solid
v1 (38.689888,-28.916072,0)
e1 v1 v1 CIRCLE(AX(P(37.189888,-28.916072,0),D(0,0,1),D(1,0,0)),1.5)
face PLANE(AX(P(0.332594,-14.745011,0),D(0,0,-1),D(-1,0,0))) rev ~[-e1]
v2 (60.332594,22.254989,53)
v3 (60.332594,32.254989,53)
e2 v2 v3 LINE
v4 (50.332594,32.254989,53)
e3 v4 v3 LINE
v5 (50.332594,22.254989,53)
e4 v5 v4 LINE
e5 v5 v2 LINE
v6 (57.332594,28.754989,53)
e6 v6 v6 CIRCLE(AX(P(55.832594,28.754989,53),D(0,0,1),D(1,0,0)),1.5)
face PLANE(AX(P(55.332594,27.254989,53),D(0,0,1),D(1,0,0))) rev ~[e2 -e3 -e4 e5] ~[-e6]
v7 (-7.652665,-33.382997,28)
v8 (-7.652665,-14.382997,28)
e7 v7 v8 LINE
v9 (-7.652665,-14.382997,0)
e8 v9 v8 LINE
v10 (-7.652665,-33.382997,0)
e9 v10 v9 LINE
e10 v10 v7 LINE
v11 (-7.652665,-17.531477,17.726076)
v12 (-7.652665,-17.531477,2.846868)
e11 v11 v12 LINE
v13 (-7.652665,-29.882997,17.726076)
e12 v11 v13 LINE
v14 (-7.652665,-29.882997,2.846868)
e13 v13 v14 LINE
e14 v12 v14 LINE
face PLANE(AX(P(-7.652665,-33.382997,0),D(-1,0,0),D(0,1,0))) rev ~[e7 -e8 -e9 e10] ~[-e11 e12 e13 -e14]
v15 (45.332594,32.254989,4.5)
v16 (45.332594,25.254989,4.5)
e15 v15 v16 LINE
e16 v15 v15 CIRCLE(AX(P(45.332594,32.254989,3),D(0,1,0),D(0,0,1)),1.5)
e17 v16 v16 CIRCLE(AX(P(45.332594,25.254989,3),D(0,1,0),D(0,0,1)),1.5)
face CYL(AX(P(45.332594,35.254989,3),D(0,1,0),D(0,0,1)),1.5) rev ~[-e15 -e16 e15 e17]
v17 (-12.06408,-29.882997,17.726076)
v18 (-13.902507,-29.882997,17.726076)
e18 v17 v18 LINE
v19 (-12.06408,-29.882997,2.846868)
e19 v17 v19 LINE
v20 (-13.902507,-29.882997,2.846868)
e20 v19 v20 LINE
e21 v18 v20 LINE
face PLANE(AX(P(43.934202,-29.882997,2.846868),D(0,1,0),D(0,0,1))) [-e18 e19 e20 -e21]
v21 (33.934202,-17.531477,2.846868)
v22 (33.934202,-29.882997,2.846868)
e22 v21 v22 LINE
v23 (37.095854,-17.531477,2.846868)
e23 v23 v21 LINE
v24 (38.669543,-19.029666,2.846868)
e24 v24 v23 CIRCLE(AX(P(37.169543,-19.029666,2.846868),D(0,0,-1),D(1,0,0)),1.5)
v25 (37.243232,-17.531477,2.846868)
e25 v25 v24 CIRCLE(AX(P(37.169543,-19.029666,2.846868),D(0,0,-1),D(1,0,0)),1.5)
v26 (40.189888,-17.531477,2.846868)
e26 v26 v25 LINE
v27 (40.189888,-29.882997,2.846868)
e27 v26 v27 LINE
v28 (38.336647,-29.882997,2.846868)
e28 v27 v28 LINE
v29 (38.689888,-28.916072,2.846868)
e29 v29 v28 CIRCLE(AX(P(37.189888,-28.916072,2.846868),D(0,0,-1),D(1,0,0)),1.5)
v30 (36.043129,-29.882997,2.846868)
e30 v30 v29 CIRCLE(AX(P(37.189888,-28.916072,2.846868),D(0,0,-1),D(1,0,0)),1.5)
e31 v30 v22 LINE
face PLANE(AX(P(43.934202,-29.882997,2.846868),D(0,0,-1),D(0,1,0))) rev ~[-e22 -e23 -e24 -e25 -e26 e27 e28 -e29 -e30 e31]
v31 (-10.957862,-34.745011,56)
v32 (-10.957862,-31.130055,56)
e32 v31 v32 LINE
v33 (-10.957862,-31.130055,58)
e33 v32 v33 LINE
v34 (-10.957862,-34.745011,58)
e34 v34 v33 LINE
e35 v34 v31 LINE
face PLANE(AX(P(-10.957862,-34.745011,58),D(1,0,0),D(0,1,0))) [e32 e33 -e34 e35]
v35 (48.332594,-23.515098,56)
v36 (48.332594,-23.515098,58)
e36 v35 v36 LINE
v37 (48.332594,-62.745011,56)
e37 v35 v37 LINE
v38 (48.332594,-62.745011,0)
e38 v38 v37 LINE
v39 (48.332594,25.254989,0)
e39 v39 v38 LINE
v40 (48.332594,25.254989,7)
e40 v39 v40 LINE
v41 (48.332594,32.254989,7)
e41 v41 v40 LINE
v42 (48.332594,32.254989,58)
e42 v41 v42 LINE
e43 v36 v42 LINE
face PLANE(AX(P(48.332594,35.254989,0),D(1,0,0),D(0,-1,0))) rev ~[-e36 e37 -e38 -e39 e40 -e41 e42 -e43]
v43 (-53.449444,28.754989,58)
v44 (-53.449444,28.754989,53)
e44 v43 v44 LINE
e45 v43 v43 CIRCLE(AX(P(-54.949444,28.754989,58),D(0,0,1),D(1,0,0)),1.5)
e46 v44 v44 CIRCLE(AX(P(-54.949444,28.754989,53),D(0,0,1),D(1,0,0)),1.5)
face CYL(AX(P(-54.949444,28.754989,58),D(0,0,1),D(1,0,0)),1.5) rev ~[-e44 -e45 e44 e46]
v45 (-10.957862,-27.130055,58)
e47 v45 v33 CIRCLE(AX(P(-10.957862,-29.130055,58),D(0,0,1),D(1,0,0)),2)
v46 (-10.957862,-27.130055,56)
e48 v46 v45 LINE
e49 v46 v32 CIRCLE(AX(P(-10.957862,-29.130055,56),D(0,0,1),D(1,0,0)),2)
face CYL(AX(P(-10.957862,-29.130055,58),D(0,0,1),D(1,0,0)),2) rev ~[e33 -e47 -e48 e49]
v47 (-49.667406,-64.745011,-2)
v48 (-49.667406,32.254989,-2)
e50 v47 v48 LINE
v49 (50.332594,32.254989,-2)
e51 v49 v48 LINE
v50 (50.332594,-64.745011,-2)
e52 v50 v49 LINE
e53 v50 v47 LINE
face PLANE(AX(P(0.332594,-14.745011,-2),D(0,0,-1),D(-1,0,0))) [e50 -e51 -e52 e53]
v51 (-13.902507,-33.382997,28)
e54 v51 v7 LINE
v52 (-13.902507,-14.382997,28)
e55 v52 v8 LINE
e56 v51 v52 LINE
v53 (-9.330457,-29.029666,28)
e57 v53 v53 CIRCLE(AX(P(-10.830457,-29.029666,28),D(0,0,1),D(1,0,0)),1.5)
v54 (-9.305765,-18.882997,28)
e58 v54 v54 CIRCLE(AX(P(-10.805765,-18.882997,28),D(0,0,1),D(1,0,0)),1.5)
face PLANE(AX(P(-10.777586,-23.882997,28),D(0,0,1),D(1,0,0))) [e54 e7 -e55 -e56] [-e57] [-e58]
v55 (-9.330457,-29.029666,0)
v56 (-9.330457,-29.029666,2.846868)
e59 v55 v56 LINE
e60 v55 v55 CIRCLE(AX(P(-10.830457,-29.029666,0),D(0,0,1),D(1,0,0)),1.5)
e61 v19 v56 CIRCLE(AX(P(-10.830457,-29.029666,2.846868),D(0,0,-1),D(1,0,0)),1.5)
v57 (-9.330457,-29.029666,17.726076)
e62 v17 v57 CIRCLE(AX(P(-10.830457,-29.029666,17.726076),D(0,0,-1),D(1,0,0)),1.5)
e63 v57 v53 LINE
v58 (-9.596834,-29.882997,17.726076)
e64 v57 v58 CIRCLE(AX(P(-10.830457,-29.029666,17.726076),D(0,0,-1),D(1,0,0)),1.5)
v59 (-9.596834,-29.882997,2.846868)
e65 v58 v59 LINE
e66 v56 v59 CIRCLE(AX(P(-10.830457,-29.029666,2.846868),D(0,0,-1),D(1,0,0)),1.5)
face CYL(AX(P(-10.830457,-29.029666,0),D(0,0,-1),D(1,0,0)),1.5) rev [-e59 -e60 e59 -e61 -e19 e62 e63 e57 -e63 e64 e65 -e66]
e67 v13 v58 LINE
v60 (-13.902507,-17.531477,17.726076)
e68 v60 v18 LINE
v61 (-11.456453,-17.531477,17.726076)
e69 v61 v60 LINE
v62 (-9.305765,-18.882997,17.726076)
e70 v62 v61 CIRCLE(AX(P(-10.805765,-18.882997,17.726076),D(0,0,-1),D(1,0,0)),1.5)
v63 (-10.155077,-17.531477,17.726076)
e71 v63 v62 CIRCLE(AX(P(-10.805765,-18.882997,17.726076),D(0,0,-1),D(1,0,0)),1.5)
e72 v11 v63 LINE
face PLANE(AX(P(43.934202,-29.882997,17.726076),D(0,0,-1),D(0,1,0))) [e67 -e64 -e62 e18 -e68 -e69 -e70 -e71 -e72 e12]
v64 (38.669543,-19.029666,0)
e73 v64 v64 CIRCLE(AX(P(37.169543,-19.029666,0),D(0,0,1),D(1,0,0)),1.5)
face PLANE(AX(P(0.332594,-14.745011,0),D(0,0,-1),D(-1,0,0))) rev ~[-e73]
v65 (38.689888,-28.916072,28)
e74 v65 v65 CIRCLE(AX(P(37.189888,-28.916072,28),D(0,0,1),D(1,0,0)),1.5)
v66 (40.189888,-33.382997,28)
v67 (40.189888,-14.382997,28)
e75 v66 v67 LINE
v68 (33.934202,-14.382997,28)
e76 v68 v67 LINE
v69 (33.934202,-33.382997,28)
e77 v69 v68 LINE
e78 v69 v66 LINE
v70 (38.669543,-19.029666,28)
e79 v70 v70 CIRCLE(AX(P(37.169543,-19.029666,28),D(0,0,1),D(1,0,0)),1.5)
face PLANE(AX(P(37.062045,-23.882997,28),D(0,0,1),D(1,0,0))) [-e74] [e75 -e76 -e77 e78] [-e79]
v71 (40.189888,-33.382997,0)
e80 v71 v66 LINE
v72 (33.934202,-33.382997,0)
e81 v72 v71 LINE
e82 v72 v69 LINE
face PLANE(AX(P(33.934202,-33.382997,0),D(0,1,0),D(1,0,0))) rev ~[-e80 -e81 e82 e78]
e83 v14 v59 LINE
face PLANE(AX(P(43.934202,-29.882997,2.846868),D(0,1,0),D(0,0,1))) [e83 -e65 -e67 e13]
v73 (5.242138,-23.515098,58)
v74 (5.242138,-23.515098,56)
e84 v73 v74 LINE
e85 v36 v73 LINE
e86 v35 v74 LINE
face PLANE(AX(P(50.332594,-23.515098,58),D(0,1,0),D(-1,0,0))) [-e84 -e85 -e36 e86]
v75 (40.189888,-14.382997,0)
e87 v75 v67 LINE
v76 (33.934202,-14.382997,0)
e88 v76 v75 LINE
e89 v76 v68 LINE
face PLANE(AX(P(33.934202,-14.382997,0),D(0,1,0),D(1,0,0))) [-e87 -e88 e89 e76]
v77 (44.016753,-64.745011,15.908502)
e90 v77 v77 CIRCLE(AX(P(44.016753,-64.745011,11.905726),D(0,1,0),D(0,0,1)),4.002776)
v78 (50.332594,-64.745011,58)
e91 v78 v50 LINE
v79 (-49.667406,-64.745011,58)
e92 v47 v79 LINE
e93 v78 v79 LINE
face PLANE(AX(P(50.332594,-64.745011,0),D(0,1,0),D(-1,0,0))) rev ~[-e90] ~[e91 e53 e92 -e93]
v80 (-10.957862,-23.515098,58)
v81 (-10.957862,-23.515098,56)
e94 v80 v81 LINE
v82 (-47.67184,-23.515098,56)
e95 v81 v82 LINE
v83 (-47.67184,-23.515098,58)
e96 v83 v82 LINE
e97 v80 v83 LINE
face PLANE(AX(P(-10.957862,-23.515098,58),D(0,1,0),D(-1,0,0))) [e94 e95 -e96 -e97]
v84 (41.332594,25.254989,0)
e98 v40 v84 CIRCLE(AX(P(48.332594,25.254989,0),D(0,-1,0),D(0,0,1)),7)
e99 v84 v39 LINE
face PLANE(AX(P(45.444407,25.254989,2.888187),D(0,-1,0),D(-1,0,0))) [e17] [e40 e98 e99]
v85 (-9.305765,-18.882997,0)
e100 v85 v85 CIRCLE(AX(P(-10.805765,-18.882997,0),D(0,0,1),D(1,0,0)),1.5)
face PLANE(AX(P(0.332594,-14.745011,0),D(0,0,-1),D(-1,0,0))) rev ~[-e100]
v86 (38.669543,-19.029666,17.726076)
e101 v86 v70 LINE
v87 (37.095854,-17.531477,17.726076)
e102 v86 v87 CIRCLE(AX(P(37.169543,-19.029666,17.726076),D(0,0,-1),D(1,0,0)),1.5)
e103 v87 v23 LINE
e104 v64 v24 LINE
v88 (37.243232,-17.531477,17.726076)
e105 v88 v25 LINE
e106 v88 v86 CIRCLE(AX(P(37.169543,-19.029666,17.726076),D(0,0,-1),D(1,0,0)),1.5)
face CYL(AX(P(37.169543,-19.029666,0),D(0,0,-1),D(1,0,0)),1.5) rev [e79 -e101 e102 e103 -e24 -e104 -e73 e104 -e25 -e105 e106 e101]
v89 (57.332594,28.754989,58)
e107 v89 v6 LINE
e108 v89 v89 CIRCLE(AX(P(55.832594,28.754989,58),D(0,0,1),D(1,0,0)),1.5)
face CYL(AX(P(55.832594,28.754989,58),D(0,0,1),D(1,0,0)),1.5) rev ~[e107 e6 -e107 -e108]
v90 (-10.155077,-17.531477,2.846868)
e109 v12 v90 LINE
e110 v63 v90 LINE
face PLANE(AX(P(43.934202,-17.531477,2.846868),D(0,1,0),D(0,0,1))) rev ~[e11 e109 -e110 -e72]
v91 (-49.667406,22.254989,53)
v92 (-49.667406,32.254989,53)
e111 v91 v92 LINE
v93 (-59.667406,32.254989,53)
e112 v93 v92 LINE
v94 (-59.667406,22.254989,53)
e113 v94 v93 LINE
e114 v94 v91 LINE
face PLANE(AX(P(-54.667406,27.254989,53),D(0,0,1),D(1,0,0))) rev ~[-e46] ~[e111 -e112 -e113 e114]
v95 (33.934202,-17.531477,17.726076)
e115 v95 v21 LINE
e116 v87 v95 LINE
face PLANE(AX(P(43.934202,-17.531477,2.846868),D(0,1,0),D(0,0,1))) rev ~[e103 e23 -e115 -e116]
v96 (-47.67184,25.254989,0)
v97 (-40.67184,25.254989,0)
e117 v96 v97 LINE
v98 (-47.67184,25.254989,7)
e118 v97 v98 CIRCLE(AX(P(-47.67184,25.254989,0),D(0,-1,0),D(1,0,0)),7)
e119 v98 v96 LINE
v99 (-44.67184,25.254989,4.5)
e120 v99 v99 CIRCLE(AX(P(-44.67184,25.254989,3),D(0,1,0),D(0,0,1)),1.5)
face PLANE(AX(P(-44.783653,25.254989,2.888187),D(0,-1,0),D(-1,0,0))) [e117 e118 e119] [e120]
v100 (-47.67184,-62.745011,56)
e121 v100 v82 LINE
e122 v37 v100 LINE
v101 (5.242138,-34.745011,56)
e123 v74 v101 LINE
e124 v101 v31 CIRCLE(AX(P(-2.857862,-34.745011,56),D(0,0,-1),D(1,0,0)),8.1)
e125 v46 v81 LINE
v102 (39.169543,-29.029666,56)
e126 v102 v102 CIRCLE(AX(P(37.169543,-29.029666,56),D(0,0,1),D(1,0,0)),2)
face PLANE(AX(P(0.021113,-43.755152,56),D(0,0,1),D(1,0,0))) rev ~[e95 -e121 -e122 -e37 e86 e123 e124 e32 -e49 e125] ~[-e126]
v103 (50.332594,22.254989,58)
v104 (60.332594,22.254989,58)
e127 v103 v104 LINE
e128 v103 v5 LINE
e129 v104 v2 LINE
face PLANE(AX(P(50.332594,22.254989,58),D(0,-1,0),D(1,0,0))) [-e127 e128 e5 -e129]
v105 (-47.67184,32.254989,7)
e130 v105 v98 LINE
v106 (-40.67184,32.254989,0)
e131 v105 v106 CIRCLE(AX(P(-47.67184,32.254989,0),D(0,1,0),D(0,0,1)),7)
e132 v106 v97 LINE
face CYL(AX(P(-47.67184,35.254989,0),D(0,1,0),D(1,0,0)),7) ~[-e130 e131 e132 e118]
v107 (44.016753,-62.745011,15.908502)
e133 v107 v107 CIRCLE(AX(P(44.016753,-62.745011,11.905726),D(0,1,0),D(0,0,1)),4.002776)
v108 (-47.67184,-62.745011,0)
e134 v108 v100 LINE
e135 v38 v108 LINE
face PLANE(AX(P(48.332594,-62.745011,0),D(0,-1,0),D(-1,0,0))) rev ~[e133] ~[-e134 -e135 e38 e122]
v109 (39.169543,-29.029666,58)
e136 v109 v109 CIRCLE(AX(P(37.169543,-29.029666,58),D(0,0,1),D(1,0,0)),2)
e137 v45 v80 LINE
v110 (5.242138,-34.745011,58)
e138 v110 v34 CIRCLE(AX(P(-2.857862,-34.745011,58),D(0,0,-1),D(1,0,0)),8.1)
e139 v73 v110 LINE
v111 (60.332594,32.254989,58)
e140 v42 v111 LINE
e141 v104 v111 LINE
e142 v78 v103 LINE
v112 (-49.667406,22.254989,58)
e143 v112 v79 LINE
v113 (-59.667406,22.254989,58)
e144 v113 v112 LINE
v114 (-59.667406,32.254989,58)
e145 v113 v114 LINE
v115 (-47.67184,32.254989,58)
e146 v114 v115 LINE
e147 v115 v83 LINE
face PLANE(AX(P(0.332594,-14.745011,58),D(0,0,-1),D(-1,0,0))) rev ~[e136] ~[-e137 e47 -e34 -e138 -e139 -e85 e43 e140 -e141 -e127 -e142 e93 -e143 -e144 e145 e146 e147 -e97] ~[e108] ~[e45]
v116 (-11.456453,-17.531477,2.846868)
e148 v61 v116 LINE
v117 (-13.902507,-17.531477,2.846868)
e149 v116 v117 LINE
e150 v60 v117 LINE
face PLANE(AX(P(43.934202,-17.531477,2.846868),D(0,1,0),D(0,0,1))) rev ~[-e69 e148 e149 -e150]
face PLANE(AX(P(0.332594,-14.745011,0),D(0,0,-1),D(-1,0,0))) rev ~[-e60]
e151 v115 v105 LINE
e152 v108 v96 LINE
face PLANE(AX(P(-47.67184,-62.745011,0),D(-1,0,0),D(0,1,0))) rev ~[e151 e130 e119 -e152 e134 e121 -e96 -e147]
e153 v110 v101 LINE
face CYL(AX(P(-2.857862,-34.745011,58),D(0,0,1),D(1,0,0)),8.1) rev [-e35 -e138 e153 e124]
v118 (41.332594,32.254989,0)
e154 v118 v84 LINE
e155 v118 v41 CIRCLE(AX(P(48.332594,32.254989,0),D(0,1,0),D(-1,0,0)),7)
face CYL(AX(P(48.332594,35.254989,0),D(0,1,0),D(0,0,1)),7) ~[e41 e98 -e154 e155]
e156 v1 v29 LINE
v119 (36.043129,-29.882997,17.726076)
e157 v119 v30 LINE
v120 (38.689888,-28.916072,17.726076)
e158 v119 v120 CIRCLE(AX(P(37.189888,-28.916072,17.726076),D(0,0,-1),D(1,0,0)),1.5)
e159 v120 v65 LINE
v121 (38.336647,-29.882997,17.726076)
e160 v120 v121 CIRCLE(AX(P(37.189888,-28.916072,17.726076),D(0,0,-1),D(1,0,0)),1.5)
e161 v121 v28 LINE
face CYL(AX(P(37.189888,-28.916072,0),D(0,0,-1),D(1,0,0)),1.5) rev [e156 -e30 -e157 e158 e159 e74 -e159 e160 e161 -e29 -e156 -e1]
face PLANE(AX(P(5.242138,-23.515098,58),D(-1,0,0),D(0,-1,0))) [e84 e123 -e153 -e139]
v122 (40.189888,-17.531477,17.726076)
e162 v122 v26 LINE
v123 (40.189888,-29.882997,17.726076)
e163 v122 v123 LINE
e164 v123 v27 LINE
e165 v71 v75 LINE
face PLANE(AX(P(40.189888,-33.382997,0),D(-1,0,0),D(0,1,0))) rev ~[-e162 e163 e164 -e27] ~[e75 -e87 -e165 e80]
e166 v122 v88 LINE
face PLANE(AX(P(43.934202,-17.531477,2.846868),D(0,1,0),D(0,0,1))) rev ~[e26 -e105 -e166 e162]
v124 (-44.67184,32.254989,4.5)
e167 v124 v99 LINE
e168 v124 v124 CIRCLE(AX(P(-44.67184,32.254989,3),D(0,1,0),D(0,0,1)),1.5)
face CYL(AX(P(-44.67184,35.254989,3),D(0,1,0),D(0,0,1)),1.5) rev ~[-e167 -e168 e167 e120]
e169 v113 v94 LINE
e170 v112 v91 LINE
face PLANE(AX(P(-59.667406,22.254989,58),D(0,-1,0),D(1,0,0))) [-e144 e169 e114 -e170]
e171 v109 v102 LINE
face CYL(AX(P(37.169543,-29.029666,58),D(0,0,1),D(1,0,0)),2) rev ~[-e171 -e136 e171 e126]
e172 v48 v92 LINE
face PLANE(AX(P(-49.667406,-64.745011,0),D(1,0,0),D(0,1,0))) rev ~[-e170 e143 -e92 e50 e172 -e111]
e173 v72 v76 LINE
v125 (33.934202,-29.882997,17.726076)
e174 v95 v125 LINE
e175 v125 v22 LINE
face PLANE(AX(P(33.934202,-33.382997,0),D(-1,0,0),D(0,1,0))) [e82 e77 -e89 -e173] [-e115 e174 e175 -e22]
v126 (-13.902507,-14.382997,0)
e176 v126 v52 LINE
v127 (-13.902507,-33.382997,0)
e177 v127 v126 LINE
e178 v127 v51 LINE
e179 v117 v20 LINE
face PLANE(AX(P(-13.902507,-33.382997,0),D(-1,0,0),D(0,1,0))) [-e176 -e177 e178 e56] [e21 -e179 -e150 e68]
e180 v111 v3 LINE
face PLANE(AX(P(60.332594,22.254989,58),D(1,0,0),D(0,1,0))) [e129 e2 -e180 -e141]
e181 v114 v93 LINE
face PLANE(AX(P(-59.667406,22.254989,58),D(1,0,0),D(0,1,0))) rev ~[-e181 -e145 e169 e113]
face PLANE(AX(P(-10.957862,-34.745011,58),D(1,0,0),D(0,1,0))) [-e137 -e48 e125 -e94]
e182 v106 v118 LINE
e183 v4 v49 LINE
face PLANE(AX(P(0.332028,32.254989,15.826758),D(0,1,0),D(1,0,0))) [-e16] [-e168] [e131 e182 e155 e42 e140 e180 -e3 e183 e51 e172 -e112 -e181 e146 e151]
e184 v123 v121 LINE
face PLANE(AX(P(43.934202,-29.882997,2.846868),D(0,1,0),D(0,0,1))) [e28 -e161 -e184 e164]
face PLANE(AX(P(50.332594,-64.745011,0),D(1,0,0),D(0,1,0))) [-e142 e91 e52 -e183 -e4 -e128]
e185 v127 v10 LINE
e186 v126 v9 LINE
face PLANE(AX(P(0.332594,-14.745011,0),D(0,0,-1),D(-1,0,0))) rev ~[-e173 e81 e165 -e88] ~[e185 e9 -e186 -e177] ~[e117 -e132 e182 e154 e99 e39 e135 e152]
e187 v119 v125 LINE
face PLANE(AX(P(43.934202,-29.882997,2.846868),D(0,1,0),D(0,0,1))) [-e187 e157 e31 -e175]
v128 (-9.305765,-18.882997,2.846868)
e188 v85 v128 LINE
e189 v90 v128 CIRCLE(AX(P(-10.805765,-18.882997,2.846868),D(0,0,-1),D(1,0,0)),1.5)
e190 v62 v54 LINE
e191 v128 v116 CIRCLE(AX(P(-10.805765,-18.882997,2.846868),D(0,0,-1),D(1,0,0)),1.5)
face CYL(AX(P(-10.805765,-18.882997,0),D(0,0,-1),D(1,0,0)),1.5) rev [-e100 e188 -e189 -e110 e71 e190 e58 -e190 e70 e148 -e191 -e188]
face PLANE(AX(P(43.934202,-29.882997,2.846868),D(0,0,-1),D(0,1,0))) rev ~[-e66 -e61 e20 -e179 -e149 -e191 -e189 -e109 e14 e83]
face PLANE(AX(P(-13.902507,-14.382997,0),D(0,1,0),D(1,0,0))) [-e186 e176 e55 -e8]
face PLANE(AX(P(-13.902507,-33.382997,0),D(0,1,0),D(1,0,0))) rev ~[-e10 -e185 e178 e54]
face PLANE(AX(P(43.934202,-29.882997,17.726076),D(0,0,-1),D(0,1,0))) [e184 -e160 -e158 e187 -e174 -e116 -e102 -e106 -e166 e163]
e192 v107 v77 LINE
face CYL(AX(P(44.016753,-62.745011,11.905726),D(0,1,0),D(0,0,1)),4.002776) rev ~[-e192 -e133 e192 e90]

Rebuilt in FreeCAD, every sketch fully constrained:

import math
import FreeCAD as App
import Part
import Sketcher
Q = App.Units.Quantity

doc = App.newDocument("Part")
body = doc.addObject("PartDesign::Body", "Body")

# Sketch on XY plane
sketch1 = body.newObject("Sketcher::SketchObject", "Sketch")
sketch1.AttachmentSupport = (doc.getObject("XY_Plane"), [""])
sketch1.MapMode = "FlatFace"
sketch1.addGeometry(Part.LineSegment(App.Vector(-47.7, 35.3, 0), App.Vector(-49.7, 35.3, 0)), False)
sketch1.addGeometry(Part.LineSegment(App.Vector(-49.7, 35.3, 0), App.Vector(-49.7, -64.7, 0)), False)
sketch1.addGeometry(Part.LineSegment(App.Vector(-49.7, -64.7, 0), App.Vector(50.3, -64.7, 0)), False)
sketch1.addGeometry(Part.LineSegment(App.Vector(50.3, -64.7, 0), App.Vector(50.3, 35.3, 0)), False)
sketch1.addGeometry(Part.LineSegment(App.Vector(50.3, 35.3, 0), App.Vector(48.3, 35.3, 0)), False)
sketch1.addGeometry(Part.LineSegment(App.Vector(48.3, 35.3, 0), App.Vector(48.3, -62.7, 0)), False)
sketch1.addGeometry(Part.LineSegment(App.Vector(48.3, -62.7, 0), App.Vector(-47.7, -62.7, 0)), False)
sketch1.addGeometry(Part.LineSegment(App.Vector(-47.7, -62.7, 0), App.Vector(-47.7, 35.3, 0)), False)
sketch1.addConstraint(Sketcher.Constraint("Coincident", 0, 2, 1, 1))
sketch1.addConstraint(Sketcher.Constraint("Coincident", 1, 2, 2, 1))
sketch1.addConstraint(Sketcher.Constraint("Coincident", 2, 2, 3, 1))
sketch1.addConstraint(Sketcher.Constraint("Coincident", 3, 2, 4, 1))
sketch1.addConstraint(Sketcher.Constraint("Coincident", 4, 2, 5, 1))
sketch1.addConstraint(Sketcher.Constraint("Coincident", 5, 2, 6, 1))
sketch1.addConstraint(Sketcher.Constraint("Coincident", 6, 2, 7, 1))
sketch1.addConstraint(Sketcher.Constraint("Coincident", 7, 2, 0, 1))
sketch1.addConstraint(Sketcher.Constraint("Horizontal", 0))
sketch1.addConstraint(Sketcher.Constraint("Vertical", 1))
sketch1.addConstraint(Sketcher.Constraint("Horizontal", 2))
sketch1.addConstraint(Sketcher.Constraint("Vertical", 3))
sketch1.addConstraint(Sketcher.Constraint("Horizontal", 4))
sketch1.addConstraint(Sketcher.Constraint("Vertical", 5))
sketch1.addConstraint(Sketcher.Constraint("Horizontal", 6))
sketch1.addConstraint(Sketcher.Constraint("Vertical", 7))
sketch1.addConstraint(Sketcher.Constraint("Horizontal", 0, 2, 3, 2))
sketch1.addConstraint(Sketcher.Constraint("Equal", 2, 1))
sketch1.addConstraint(Sketcher.Constraint("DistanceX", 2, 1, 2, 2, Q("100 mm")))
sketch1.addConstraint(Sketcher.Constraint("DistanceX", 4, 2, 4, 1, Q("2 mm")))
sketch1.addConstraint(Sketcher.Constraint("DistanceY", 5, 2, 5, 1, Q("98 mm")))
sketch1.addConstraint(Sketcher.Constraint("DistanceX", 0, 2, 0, 1, Q("1.995565 mm")))
sketch1.addConstraint(Sketcher.Constraint("DistanceY", -1, 1, 0, 2, Q("35.254989 mm")))
sketch1.addConstraint(Sketcher.Constraint("DistanceX", 6, 2, -1, 1, Q("47.67184 mm")))
pad1 = body.newObject("PartDesign::Pad", "Pad")
pad1.Profile = sketch1
pad1.Length = 70

# Sketch on XY plane
sketch2 = body.newObject("Sketcher::SketchObject", "Sketch001")
sketch2.AttachmentSupport = (doc.getObject("XY_Plane"), [""])
sketch2.MapMode = "FlatFace"
sketch2.addGeometry(Part.LineSegment(App.Vector(50, 35, 0), App.Vector(50, -65, 0)), False)
sketch2.addGeometry(Part.LineSegment(App.Vector(50, -65, 0), App.Vector(-50, -65, 0)), False)
sketch2.addGeometry(Part.LineSegment(App.Vector(-50, -65, 0), App.Vector(-50, 35, 0)), False)
sketch2.addGeometry(Part.LineSegment(App.Vector(-50, 35, 0), App.Vector(50, 35, 0)), False)
sketch2.addConstraint(Sketcher.Constraint("Coincident", 0, 2, 1, 1))
sketch2.addConstraint(Sketcher.Constraint("Coincident", 1, 2, 2, 1))
sketch2.addConstraint(Sketcher.Constraint("Coincident", 2, 2, 3, 1))
sketch2.addConstraint(Sketcher.Constraint("Coincident", 3, 2, 0, 1))
sketch2.addConstraint(Sketcher.Constraint("Vertical", 0))
sketch2.addConstraint(Sketcher.Constraint("Horizontal", 1))
sketch2.addConstraint(Sketcher.Constraint("Vertical", 2))
sketch2.addConstraint(Sketcher.Constraint("Horizontal", 3))
sketch2.addConstraint(Sketcher.Constraint("Equal", 3, 0))
sketch2.addConstraint(Sketcher.Constraint("DistanceX", 1, 2, 1, 1, Q("100 mm")))
sketch2.addConstraint(Sketcher.Constraint("DistanceY", 0, 2, -1, 1, Q("64.745011 mm")))
sketch2.addConstraint(Sketcher.Constraint("DistanceX", -1, 1, 0, 2, Q("50.332594 mm")))
pad2 = body.newObject("PartDesign::Pad", "Pad001")
pad2.Profile = sketch2
pad2.Length = 2
pad2.Reversed = True

# Sketch on XY plane
sketch3 = body.newObject("Sketcher::SketchObject", "Sketch002")
sketch3.AttachmentSupport = (doc.getObject("XY_Plane"), [""])
sketch3.MapMode = "FlatFace"
sketch3.addGeometry(Part.LineSegment(App.Vector(33.9, -14.4, 0), App.Vector(33.9, -33.4, 0)), False)
sketch3.addGeometry(Part.LineSegment(App.Vector(33.9, -33.4, 0), App.Vector(40.2, -33.4, 0)), False)
sketch3.addGeometry(Part.LineSegment(App.Vector(40.2, -33.4, 0), App.Vector(40.2, -14.4, 0)), False)
sketch3.addGeometry(Part.LineSegment(App.Vector(40.2, -14.4, 0), App.Vector(33.9, -14.4, 0)), False)
sketch3.addGeometry(Part.Circle(App.Vector(37.2, -28.9, 0), App.Vector(0, 0, 1), 1.5), False)
sketch3.addGeometry(Part.Circle(App.Vector(37.2, -19, 0), App.Vector(0, 0, 1), 1.5), False)
sketch3.addGeometry(Part.LineSegment(App.Vector(-13.9, -14.4, 0), App.Vector(-13.9, -33.4, 0)), False)
sketch3.addGeometry(Part.LineSegment(App.Vector(-13.9, -33.4, 0), App.Vector(-7.7, -33.4, 0)), False)
sketch3.addGeometry(Part.LineSegment(App.Vector(-7.7, -33.4, 0), App.Vector(-7.7, -14.4, 0)), False)
sketch3.addGeometry(Part.LineSegment(App.Vector(-7.7, -14.4, 0), App.Vector(-13.9, -14.4, 0)), False)
sketch3.addGeometry(Part.Circle(App.Vector(-10.8, -29, 0), App.Vector(0, 0, 1), 1.5), False)
sketch3.addGeometry(Part.Circle(App.Vector(-10.8, -18.9, 0), App.Vector(0, 0, 1), 1.5), False)
sketch3.addConstraint(Sketcher.Constraint("Coincident", 0, 2, 1, 1))
sketch3.addConstraint(Sketcher.Constraint("Coincident", 1, 2, 2, 1))
sketch3.addConstraint(Sketcher.Constraint("Coincident", 2, 2, 3, 1))
sketch3.addConstraint(Sketcher.Constraint("Coincident", 3, 2, 0, 1))
sketch3.addConstraint(Sketcher.Constraint("Coincident", 6, 2, 7, 1))
sketch3.addConstraint(Sketcher.Constraint("Coincident", 7, 2, 8, 1))
sketch3.addConstraint(Sketcher.Constraint("Coincident", 8, 2, 9, 1))
sketch3.addConstraint(Sketcher.Constraint("Coincident", 9, 2, 6, 1))
sketch3.addConstraint(Sketcher.Constraint("Vertical", 0))
sketch3.addConstraint(Sketcher.Constraint("Horizontal", 1))
sketch3.addConstraint(Sketcher.Constraint("Vertical", 2))
sketch3.addConstraint(Sketcher.Constraint("Horizontal", 3))
sketch3.addConstraint(Sketcher.Constraint("Vertical", 6))
sketch3.addConstraint(Sketcher.Constraint("Horizontal", 7))
sketch3.addConstraint(Sketcher.Constraint("Vertical", 8))
sketch3.addConstraint(Sketcher.Constraint("Horizontal", 9))
sketch3.addConstraint(Sketcher.Constraint("Equal", 4, 5))
sketch3.addConstraint(Sketcher.Constraint("Equal", 5, 10))
sketch3.addConstraint(Sketcher.Constraint("Equal", 10, 11))
sketch3.addConstraint(Sketcher.Constraint("Horizontal", 1, 2, 6, 2))
sketch3.addConstraint(Sketcher.Constraint("Horizontal", 3, 2, 8, 2))
sketch3.addConstraint(Sketcher.Constraint("Diameter", 4, Q("3 mm")))
sketch3.addConstraint(Sketcher.Constraint("DistanceY", 0, 2, 0, 1, Q("19 mm")))
sketch3.addConstraint(Sketcher.Constraint("DistanceX", 10, 3, 5, 3, Q("48 mm")))
sketch3.addConstraint(Sketcher.Constraint("DistanceY", 10, 3, 5, 3, Q("10 mm")))
sketch3.addConstraint(Sketcher.Constraint("DistanceX", 4, 3, 1, 2, Q("3 mm")))
sketch3.addConstraint(Sketcher.Constraint("DistanceY", 0, 2, 11, 3, Q("14.5 mm")))
sketch3.addConstraint(Sketcher.Constraint("DistanceX", -1, 1, 0, 2, Q("33.934202 mm")))
sketch3.addConstraint(Sketcher.Constraint("DistanceX", 11, 3, 7, 2, Q("3.1531 mm")))
sketch3.addConstraint(Sketcher.Constraint("DistanceX", 1, 1, 1, 2, Q("6.255686 mm")))
sketch3.addConstraint(Sketcher.Constraint("DistanceX", 7, 1, 7, 2, Q("6.249842 mm")))
sketch3.addConstraint(Sketcher.Constraint("DistanceY", 4, 3, -1, 1, Q("28.916072 mm")))
sketch3.addConstraint(Sketcher.Constraint("DistanceY", 10, 3, 11, 3, Q("10.146669 mm")))
sketch3.addConstraint(Sketcher.Constraint("DistanceX", 0, 2, 5, 3, Q("3.235341 mm")))
sketch3.addConstraint(Sketcher.Constraint("DistanceX", 6, 2, 10, 3, Q("3.07205 mm")))
sketch3.addConstraint(Sketcher.Constraint("DistanceY", 5, 3, -1, 1, Q("19.029666 mm")))
pad3 = body.newObject("PartDesign::Pad", "Pad002")
pad3.Profile = sketch3
pad3.Length = 28

# Sketch on YZ plane
sketch4 = body.newObject("Sketcher::SketchObject", "Sketch003")
sketch4.AttachmentSupport = (doc.getObject("YZ_Plane"), [""])
sketch4.MapMode = "FlatFace"
sketch4.AttachmentOffset = App.Placement(App.Vector(0, 0, 33.934202), App.Rotation())
sketch4.addGeometry(Part.LineSegment(App.Vector(-18, 3, 0), App.Vector(-30, 3, 0)), False)
sketch4.addGeometry(Part.LineSegment(App.Vector(-30, 3, 0), App.Vector(-30, 18, 0)), False)
sketch4.addGeometry(Part.LineSegment(App.Vector(-30, 18, 0), App.Vector(-18, 18, 0)), False)
sketch4.addGeometry(Part.LineSegment(App.Vector(-18, 18, 0), App.Vector(-18, 3, 0)), False)
sketch4.addConstraint(Sketcher.Constraint("Coincident", 0, 2, 1, 1))
sketch4.addConstraint(Sketcher.Constraint("Coincident", 1, 2, 2, 1))
sketch4.addConstraint(Sketcher.Constraint("Coincident", 2, 2, 3, 1))
sketch4.addConstraint(Sketcher.Constraint("Coincident", 3, 2, 0, 1))
sketch4.addConstraint(Sketcher.Constraint("Horizontal", 0))
sketch4.addConstraint(Sketcher.Constraint("Vertical", 1))
sketch4.addConstraint(Sketcher.Constraint("Horizontal", 2))
sketch4.addConstraint(Sketcher.Constraint("Vertical", 3))
sketch4.addConstraint(Sketcher.Constraint("DistanceX", 0, 2, 0, 1, Q("12.35152 mm")))
sketch4.addConstraint(Sketcher.Constraint("DistanceY", 1, 1, 1, 2, Q("14.879208 mm")))
sketch4.addConstraint(Sketcher.Constraint("DistanceY", -1, 1, 0, 2, Q("2.846868 mm")))
sketch4.addConstraint(Sketcher.Constraint("DistanceX", 0, 2, -1, 1, Q("29.882997 mm")))
pocket1 = body.newObject("PartDesign::Pocket", "Pocket")
pocket1.Profile = sketch4
pocket1.Type = "TwoLengths"
pocket1.Length = 49
pocket1.Length2 = 10

# Sketch on XY plane
sketch5 = body.newObject("Sketcher::SketchObject", "Sketch004")
sketch5.AttachmentSupport = (doc.getObject("XY_Plane"), [""])
sketch5.MapMode = "FlatFace"
sketch5.AttachmentOffset = App.Placement(App.Vector(0, 0, 70), App.Rotation())
sketch5.addGeometry(Part.LineSegment(App.Vector(-48, -19, 0), App.Vector(-48, -63, 0)), False)
sketch5.addGeometry(Part.LineSegment(App.Vector(-48, -63, 0), App.Vector(48, -63, 0)), False)
sketch5.addGeometry(Part.LineSegment(App.Vector(48, -63, 0), App.Vector(48, -19, 0)), False)
sketch5.addGeometry(Part.LineSegment(App.Vector(48, -19, 0), App.Vector(-48, -19, 0)), False)
sketch5.addConstraint(Sketcher.Constraint("Coincident", 0, 2, 1, 1))
sketch5.addConstraint(Sketcher.Constraint("Coincident", 1, 2, 2, 1))
sketch5.addConstraint(Sketcher.Constraint("Coincident", 2, 2, 3, 1))
sketch5.addConstraint(Sketcher.Constraint("Coincident", 3, 2, 0, 1))
sketch5.addConstraint(Sketcher.Constraint("Vertical", 0))
sketch5.addConstraint(Sketcher.Constraint("Horizontal", 1))
sketch5.addConstraint(Sketcher.Constraint("Vertical", 2))
sketch5.addConstraint(Sketcher.Constraint("Horizontal", 3))
sketch5.addConstraint(Sketcher.Constraint("DistanceX", 1, 1, 1, 2, Q("96.004435 mm")))
sketch5.addConstraint(Sketcher.Constraint("DistanceY", 0, 2, 0, 1, Q("43.693153 mm")))
sketch5.addConstraint(Sketcher.Constraint("DistanceX", 0, 2, -1, 1, Q("47.67184 mm")))
sketch5.addConstraint(Sketcher.Constraint("DistanceY", 0, 2, -1, 1, Q("62.745011 mm")))
pad4 = body.newObject("PartDesign::Pad", "Pad003")
pad4.Profile = sketch5
pad4.Length = 2
pad4.Reversed = True

# Sketch on XY plane
sketch6 = body.newObject("Sketcher::SketchObject", "Sketch005")
sketch6.AttachmentSupport = (doc.getObject("XY_Plane"), [""])
sketch6.MapMode = "FlatFace"
sketch6.AttachmentOffset = App.Placement(App.Vector(0, 0, 58), App.Rotation())
sketch6.addGeometry(Part.LineSegment(App.Vector(50, 35, 0), App.Vector(50, -65, 0)), False)
sketch6.addGeometry(Part.LineSegment(App.Vector(50, -65, 0), App.Vector(-50, -65, 0)), False)
sketch6.addGeometry(Part.LineSegment(App.Vector(-50, -65, 0), App.Vector(-50, 35, 0)), False)
sketch6.addGeometry(Part.LineSegment(App.Vector(-50, 35, 0), App.Vector(50, 35, 0)), False)
sketch6.addConstraint(Sketcher.Constraint("Coincident", 0, 2, 1, 1))
sketch6.addConstraint(Sketcher.Constraint("Coincident", 1, 2, 2, 1))
sketch6.addConstraint(Sketcher.Constraint("Coincident", 2, 2, 3, 1))
sketch6.addConstraint(Sketcher.Constraint("Coincident", 3, 2, 0, 1))
sketch6.addConstraint(Sketcher.Constraint("Vertical", 0))
sketch6.addConstraint(Sketcher.Constraint("Horizontal", 1))
sketch6.addConstraint(Sketcher.Constraint("Vertical", 2))
sketch6.addConstraint(Sketcher.Constraint("Horizontal", 3))
sketch6.addConstraint(Sketcher.Constraint("Equal", 3, 0))
sketch6.addConstraint(Sketcher.Constraint("DistanceX", 1, 2, 1, 1, Q("100 mm")))
sketch6.addConstraint(Sketcher.Constraint("DistanceY", 0, 2, -1, 1, Q("64.745011 mm")))
sketch6.addConstraint(Sketcher.Constraint("DistanceX", -1, 1, 0, 2, Q("50.332594 mm")))
pocket2 = body.newObject("PartDesign::Pocket", "Pocket001")
pocket2.Profile = sketch6
pocket2.Length = 42
pocket2.Reversed = True

# Sketch on XY plane
sketch7 = body.newObject("Sketcher::SketchObject", "Sketch006")
sketch7.AttachmentSupport = (doc.getObject("XY_Plane"), [""])
sketch7.MapMode = "FlatFace"
sketch7.AttachmentOffset = App.Placement(App.Vector(0, 0, 58), App.Rotation())
sketch7.addGeometry(Part.LineSegment(App.Vector(-50, -65, 0), App.Vector(50, -65, 0)), False)
sketch7.addGeometry(Part.LineSegment(App.Vector(50, -65, 0), App.Vector(50, -24, 0)), False)
sketch7.addGeometry(Part.LineSegment(App.Vector(50, -24, 0), App.Vector(5, -24, 0)), False)
sketch7.addGeometry(Part.LineSegment(App.Vector(5, -24, 0), App.Vector(5, -35, 0)), False)
sketch7.addGeometry(Part.ArcOfCircle(Part.Circle(App.Vector(-3, -35, 0), App.Vector(0, 0, 1), 8), math.radians(180), math.radians(360)), False)
sketch7.addGeometry(Part.LineSegment(App.Vector(-11, -35, 0), App.Vector(-11, -24, 0)), False)
sketch7.addGeometry(Part.LineSegment(App.Vector(-11, -24, 0), App.Vector(-50, -24, 0)), False)
sketch7.addGeometry(Part.LineSegment(App.Vector(-50, -24, 0), App.Vector(-50, -65, 0)), False)
sketch7.addConstraint(Sketcher.Constraint("Coincident", 0, 2, 1, 1))
sketch7.addConstraint(Sketcher.Constraint("Coincident", 1, 2, 2, 1))
sketch7.addConstraint(Sketcher.Constraint("Coincident", 2, 2, 3, 1))
sketch7.addConstraint(Sketcher.Constraint("Tangent", 3, 2, 4, 2))
sketch7.addConstraint(Sketcher.Constraint("Tangent", 4, 1, 5, 1))
sketch7.addConstraint(Sketcher.Constraint("Coincident", 5, 2, 6, 1))
sketch7.addConstraint(Sketcher.Constraint("Coincident", 6, 2, 7, 1))
sketch7.addConstraint(Sketcher.Constraint("Coincident", 7, 2, 0, 1))
sketch7.addConstraint(Sketcher.Constraint("Horizontal", 0))
sketch7.addConstraint(Sketcher.Constraint("Vertical", 1))
sketch7.addConstraint(Sketcher.Constraint("Horizontal", 2))
sketch7.addConstraint(Sketcher.Constraint("Vertical", 3))
sketch7.addConstraint(Sketcher.Constraint("Vertical", 5))
sketch7.addConstraint(Sketcher.Constraint("Horizontal", 6))
sketch7.addConstraint(Sketcher.Constraint("Vertical", 7))
sketch7.addConstraint(Sketcher.Constraint("Horizontal", 2, 2, 5, 2))
sketch7.addConstraint(Sketcher.Constraint("Radius", 4, Q("8.1 mm")))
sketch7.addConstraint(Sketcher.Constraint("DistanceX", 0, 1, 0, 2, Q("100 mm")))
sketch7.addConstraint(Sketcher.Constraint("DistanceY", 0, 2, 4, 3, Q("30 mm")))
sketch7.addConstraint(Sketcher.Constraint("DistanceY", 1, 2, -1, 1, Q("23.515098 mm")))
sketch7.addConstraint(Sketcher.Constraint("DistanceX", 2, 2, 2, 1, Q("45.090456 mm")))
sketch7.addConstraint(Sketcher.Constraint("DistanceY", 1, 1, 1, 2, Q("41.229913 mm")))
sketch7.addConstraint(Sketcher.Constraint("DistanceX", 4, 3, -1, 1, Q("2.857862 mm")))
pad5 = body.newObject("PartDesign::Pad", "Pad004")
pad5.Profile = sketch7
pad5.Length = 2
pad5.Reversed = True

# Sketch on XZ plane
sketch8 = body.newObject("Sketcher::SketchObject", "Sketch007")
sketch8.AttachmentSupport = (doc.getObject("XZ_Plane"), [""])
sketch8.MapMode = "FlatFace"
sketch8.AttachmentOffset = App.Placement(App.Vector(0, 0, -35.254989), App.Rotation())
sketch8.addGeometry(Part.LineSegment(App.Vector(-40.7, 0, 0), App.Vector(-47.7, 0, 0)), False)
sketch8.addGeometry(Part.LineSegment(App.Vector(-47.7, 0, 0), App.Vector(-47.7, 7, 0)), False)
sketch8.addGeometry(Part.ArcOfCircle(Part.Circle(App.Vector(-47.7, 0, 0), App.Vector(0, 0, 1), 7), math.radians(0), math.radians(90)), False)
sketch8.addGeometry(Part.Circle(App.Vector(-44.7, 3, 0), App.Vector(0, 0, 1), 1.5), False)
sketch8.addGeometry(Part.LineSegment(App.Vector(48.3, 7, 0), App.Vector(48.3, 0, 0)), False)
sketch8.addGeometry(Part.LineSegment(App.Vector(48.3, 0, 0), App.Vector(41.3, 0, 0)), False)
sketch8.addGeometry(Part.ArcOfCircle(Part.Circle(App.Vector(48.3, 0, 0), App.Vector(0, 0, 1), 7), math.radians(90), math.radians(180)), False)
sketch8.addGeometry(Part.Circle(App.Vector(45.3, 3, 0), App.Vector(0, 0, 1), 1.5), False)
sketch8.addConstraint(Sketcher.Constraint("Coincident", 0, 2, 1, 1))
sketch8.addConstraint(Sketcher.Constraint("Coincident", 1, 2, 2, 2))
sketch8.addConstraint(Sketcher.Constraint("Coincident", 2, 1, 0, 1))
sketch8.addConstraint(Sketcher.Constraint("Coincident", 4, 2, 5, 1))
sketch8.addConstraint(Sketcher.Constraint("Coincident", 5, 2, 6, 2))
sketch8.addConstraint(Sketcher.Constraint("Coincident", 6, 1, 4, 1))
sketch8.addConstraint(Sketcher.Constraint("Horizontal", 0))
sketch8.addConstraint(Sketcher.Constraint("Vertical", 1))
sketch8.addConstraint(Sketcher.Constraint("Vertical", 4))
sketch8.addConstraint(Sketcher.Constraint("Horizontal", 5))
sketch8.addConstraint(Sketcher.Constraint("Coincident", 0, 2, 2, 3))
sketch8.addConstraint(Sketcher.Constraint("Coincident", 4, 2, 6, 3))
sketch8.addConstraint(Sketcher.Constraint("Equal", 2, 6))
sketch8.addConstraint(Sketcher.Constraint("Equal", 3, 7))
sketch8.addConstraint(Sketcher.Constraint("PointOnObject", 2, 3, -1))
sketch8.addConstraint(Sketcher.Constraint("PointOnObject", 6, 3, -1))
sketch8.addConstraint(Sketcher.Constraint("Horizontal", 3, 3, 7, 3))
sketch8.addConstraint(Sketcher.Constraint("Diameter", 3, Q("3 mm")))
sketch8.addConstraint(Sketcher.Constraint("Radius", 2, Q("7 mm")))
sketch8.addConstraint(Sketcher.Constraint("DistanceY", -1, 1, 3, 3, Q("3 mm")))
sketch8.addConstraint(Sketcher.Constraint("DistanceX", 2, 3, 3, 3, Q("3 mm")))
sketch8.addConstraint(Sketcher.Constraint("DistanceX", 7, 3, 6, 3, Q("3 mm")))
sketch8.addConstraint(Sketcher.Constraint("DistanceX", 2, 3, -1, 1, Q("47.67184 mm")))
sketch8.addConstraint(Sketcher.Constraint("DistanceX", -1, 1, 6, 3, Q("48.332594 mm")))
pad6 = body.newObject("PartDesign::Pad", "Pad005")
pad6.Profile = sketch8
pad6.Length = 10

# Sketch on XY plane
sketch9 = body.newObject("Sketcher::SketchObject", "Sketch008")
sketch9.AttachmentSupport = (doc.getObject("XY_Plane"), [""])
sketch9.MapMode = "FlatFace"
sketch9.AttachmentOffset = App.Placement(App.Vector(0, 0, 58), App.Rotation())
sketch9.addGeometry(Part.LineSegment(App.Vector(-59.7, 32.3, 0), App.Vector(-59.7, 22.3, 0)), False)
sketch9.addGeometry(Part.LineSegment(App.Vector(-59.7, 22.3, 0), App.Vector(-49.7, 22.3, 0)), False)
sketch9.addGeometry(Part.LineSegment(App.Vector(-49.7, 22.3, 0), App.Vector(-49.7, 32.3, 0)), False)
sketch9.addGeometry(Part.LineSegment(App.Vector(-49.7, 32.3, 0), App.Vector(-59.7, 32.3, 0)), False)
sketch9.addGeometry(Part.Circle(App.Vector(-54.9, 28.8, 0), App.Vector(0, 0, 1), 1.5), False)
sketch9.addGeometry(Part.LineSegment(App.Vector(50.3, 32.3, 0), App.Vector(50.3, 22.3, 0)), False)
sketch9.addGeometry(Part.LineSegment(App.Vector(50.3, 22.3, 0), App.Vector(60.3, 22.3, 0)), False)
sketch9.addGeometry(Part.LineSegment(App.Vector(60.3, 22.3, 0), App.Vector(60.3, 32.3, 0)), False)
sketch9.addGeometry(Part.LineSegment(App.Vector(60.3, 32.3, 0), App.Vector(50.3, 32.3, 0)), False)
sketch9.addGeometry(Part.Circle(App.Vector(55.8, 28.8, 0), App.Vector(0, 0, 1), 1.5), False)
sketch9.addConstraint(Sketcher.Constraint("Coincident", 0, 2, 1, 1))
sketch9.addConstraint(Sketcher.Constraint("Coincident", 1, 2, 2, 1))
sketch9.addConstraint(Sketcher.Constraint("Coincident", 2, 2, 3, 1))
sketch9.addConstraint(Sketcher.Constraint("Coincident", 3, 2, 0, 1))
sketch9.addConstraint(Sketcher.Constraint("Coincident", 5, 2, 6, 1))
sketch9.addConstraint(Sketcher.Constraint("Coincident", 6, 2, 7, 1))
sketch9.addConstraint(Sketcher.Constraint("Coincident", 7, 2, 8, 1))
sketch9.addConstraint(Sketcher.Constraint("Coincident", 8, 2, 5, 1))
sketch9.addConstraint(Sketcher.Constraint("Vertical", 0))
sketch9.addConstraint(Sketcher.Constraint("Horizontal", 1))
sketch9.addConstraint(Sketcher.Constraint("Vertical", 2))
sketch9.addConstraint(Sketcher.Constraint("Horizontal", 3))
sketch9.addConstraint(Sketcher.Constraint("Vertical", 5))
sketch9.addConstraint(Sketcher.Constraint("Horizontal", 6))
sketch9.addConstraint(Sketcher.Constraint("Vertical", 7))
sketch9.addConstraint(Sketcher.Constraint("Horizontal", 8))
sketch9.addConstraint(Sketcher.Constraint("Equal", 4, 9))
sketch9.addConstraint(Sketcher.Constraint("Horizontal", 4, 3, 9, 3))
sketch9.addConstraint(Sketcher.Constraint("Horizontal", 1, 2, 5, 2))
sketch9.addConstraint(Sketcher.Constraint("Horizontal", 3, 2, 7, 2))
sketch9.addConstraint(Sketcher.Constraint("Equal", 3, 6))
sketch9.addConstraint(Sketcher.Constraint("Equal", 8, 0))
sketch9.addConstraint(Sketcher.Constraint("Diameter", 4, Q("3 mm")))
sketch9.addConstraint(Sketcher.Constraint("DistanceX", 1, 1, 1, 2, Q("10 mm")))
sketch9.addConstraint(Sketcher.Constraint("DistanceX", 1, 2, 5, 2, Q("100 mm")))
sketch9.addConstraint(Sketcher.Constraint("DistanceY", 0, 2, 4, 3, Q("6.5 mm")))
sketch9.addConstraint(Sketcher.Constraint("DistanceX", 0, 2, 9, 3, Q("115.5 mm")))
sketch9.addConstraint(Sketcher.Constraint("DistanceY", -1, 1, 4, 3, Q("28.754989 mm")))
sketch9.addConstraint(Sketcher.Constraint("DistanceX", 4, 3, 9, 3, Q("110.782039 mm")))
sketch9.addConstraint(Sketcher.Constraint("DistanceX", 4, 3, -1, 1, Q("54.949444 mm")))
pad7 = body.newObject("PartDesign::Pad", "Pad006")
pad7.Profile = sketch9
pad7.Length = 5
pad7.Reversed = True

# Sketch on XY plane
sketch10 = body.newObject("Sketcher::SketchObject", "Sketch009")
sketch10.AttachmentSupport = (doc.getObject("XY_Plane"), [""])
sketch10.MapMode = "FlatFace"
sketch10.AttachmentOffset = App.Placement(App.Vector(0, 0, 58), App.Rotation())
sketch10.addGeometry(Part.Circle(App.Vector(-11, -29.1, 0), App.Vector(0, 0, 1), 2), False)
sketch10.addGeometry(Part.Circle(App.Vector(37.2, -29, 0), App.Vector(0, 0, 1), 2), False)
sketch10.addConstraint(Sketcher.Constraint("Equal", 0, 1))
sketch10.addConstraint(Sketcher.Constraint("Diameter", 0, Q("4 mm")))
sketch10.addConstraint(Sketcher.Constraint("DistanceX", 0, 3, -1, 1, Q("10.957862 mm")))
sketch10.addConstraint(Sketcher.Constraint("DistanceY", 0, 3, 1, 3, Q("0.100389 mm")))
sketch10.addConstraint(Sketcher.Constraint("DistanceY", 0, 3, -1, 1, Q("29.130055 mm")))
sketch10.addConstraint(Sketcher.Constraint("DistanceX", -1, 1, 1, 3, Q("37.169543 mm")))
pocket3 = body.newObject("PartDesign::Pocket", "Pocket002")
pocket3.Profile = sketch10
pocket3.Length = 10

# Sketch on XZ plane
sketch11 = body.newObject("Sketcher::SketchObject", "Sketch010")
sketch11.AttachmentSupport = (doc.getObject("XZ_Plane"), [""])
sketch11.MapMode = "FlatFace"
sketch11.AttachmentOffset = App.Placement(App.Vector(0, 0, -35.254989), App.Rotation())
sketch11.addGeometry(Part.LineSegment(App.Vector(-47.7, 58, 0), App.Vector(-47.7, 7, 0)), False)
sketch11.addGeometry(Part.ArcOfCircle(Part.Circle(App.Vector(-47.7, 0, 0), App.Vector(0, 0, 1), 7), math.radians(0), math.radians(90)), False)
sketch11.addGeometry(Part.LineSegment(App.Vector(-40.7, 0, 0), App.Vector(41.3, 0, 0)), False)
sketch11.addGeometry(Part.ArcOfCircle(Part.Circle(App.Vector(48.3, 0, 0), App.Vector(0, 0, 1), 7), math.radians(90), math.radians(180)), False)
sketch11.addGeometry(Part.LineSegment(App.Vector(48.3, 7, 0), App.Vector(48.3, 58, 0)), False)
sketch11.addGeometry(Part.LineSegment(App.Vector(48.3, 58, 0), App.Vector(50.3, 58, 0)), False)
sketch11.addGeometry(Part.LineSegment(App.Vector(50.3, 58, 0), App.Vector(50.3, -2, 0)), False)
sketch11.addGeometry(Part.LineSegment(App.Vector(50.3, -2, 0), App.Vector(-49.7, -2, 0)), False)
sketch11.addGeometry(Part.LineSegment(App.Vector(-49.7, -2, 0), App.Vector(-49.7, 58, 0)), False)
sketch11.addGeometry(Part.LineSegment(App.Vector(-49.7, 58, 0), App.Vector(-47.7, 58, 0)), False)
sketch11.addConstraint(Sketcher.Constraint("Coincident", 0, 2, 1, 2))
sketch11.addConstraint(Sketcher.Constraint("Coincident", 1, 1, 2, 1))
sketch11.addConstraint(Sketcher.Constraint("Coincident", 2, 2, 3, 2))
sketch11.addConstraint(Sketcher.Constraint("Coincident", 3, 1, 4, 1))
sketch11.addConstraint(Sketcher.Constraint("Coincident", 4, 2, 5, 1))
sketch11.addConstraint(Sketcher.Constraint("Coincident", 5, 2, 6, 1))
sketch11.addConstraint(Sketcher.Constraint("Coincident", 6, 2, 7, 1))
sketch11.addConstraint(Sketcher.Constraint("Coincident", 7, 2, 8, 1))
sketch11.addConstraint(Sketcher.Constraint("Coincident", 8, 2, 9, 1))
sketch11.addConstraint(Sketcher.Constraint("Coincident", 9, 2, 0, 1))
sketch11.addConstraint(Sketcher.Constraint("Vertical", 0))
sketch11.addConstraint(Sketcher.Constraint("Horizontal", 2))
sketch11.addConstraint(Sketcher.Constraint("Vertical", 4))
sketch11.addConstraint(Sketcher.Constraint("Horizontal", 5))
sketch11.addConstraint(Sketcher.Constraint("Vertical", 6))
sketch11.addConstraint(Sketcher.Constraint("Horizontal", 7))
sketch11.addConstraint(Sketcher.Constraint("Vertical", 8))
sketch11.addConstraint(Sketcher.Constraint("Horizontal", 9))
sketch11.addConstraint(Sketcher.Constraint("Equal", 1, 3))
sketch11.addConstraint(Sketcher.Constraint("PointOnObject", 1, 3, -1))
sketch11.addConstraint(Sketcher.Constraint("PointOnObject", 3, 3, -1))
sketch11.addConstraint(Sketcher.Constraint("PointOnObject", 1, 1, -1))
sketch11.addConstraint(Sketcher.Constraint("Horizontal", 5, 2, 8, 2))
sketch11.addConstraint(Sketcher.Constraint("Vertical", 1, 3, 0, 2))
sketch11.addConstraint(Sketcher.Constraint("Radius", 1, Q("7 mm")))
sketch11.addConstraint(Sketcher.Constraint("DistanceX", 5, 1, 5, 2, Q("2 mm")))
sketch11.addConstraint(Sketcher.Constraint("DistanceX", 7, 2, 7, 1, Q("100 mm")))
sketch11.addConstraint(Sketcher.Constraint("DistanceY", 0, 2, 0, 1, Q("51 mm")))
sketch11.addConstraint(Sketcher.Constraint("DistanceY", 6, 2, 6, 1, Q("60 mm")))
sketch11.addConstraint(Sketcher.Constraint("DistanceX", 2, 2, 3, 1, Q("7 mm")))
sketch11.addConstraint(Sketcher.Constraint("DistanceX", 2, 1, 2, 2, Q("82.004435 mm")))
sketch11.addConstraint(Sketcher.Constraint("DistanceX", 1, 3, -1, 1, Q("47.67184 mm")))
pocket4 = body.newObject("PartDesign::Pocket", "Pocket003")
pocket4.Profile = sketch11
pocket4.Length = 3
pocket4.Reversed = True

# Sketch on XZ plane
sketch12 = body.newObject("Sketcher::SketchObject", "Sketch011")
sketch12.AttachmentSupport = (doc.getObject("XZ_Plane"), [""])
sketch12.MapMode = "FlatFace"
sketch12.AttachmentOffset = App.Placement(App.Vector(0, 0, 62.745011), App.Rotation())
sketch12.addGeometry(Part.Circle(App.Vector(44, 11.9, 0), App.Vector(0, 0, 1), 4), False)
sketch12.addConstraint(Sketcher.Constraint("Diameter", 0, Q("8.005551 mm")))
sketch12.addConstraint(Sketcher.Constraint("DistanceX", -1, 1, 0, 3, Q("44.016753 mm")))
sketch12.addConstraint(Sketcher.Constraint("DistanceY", -1, 1, 0, 3, Q("11.905726 mm")))
pocket5 = body.newObject("PartDesign::Pocket", "Pocket004")
pocket5.Profile = sketch12
pocket5.Length = 3
pocket5.Reversed = True

doc.recompute()
